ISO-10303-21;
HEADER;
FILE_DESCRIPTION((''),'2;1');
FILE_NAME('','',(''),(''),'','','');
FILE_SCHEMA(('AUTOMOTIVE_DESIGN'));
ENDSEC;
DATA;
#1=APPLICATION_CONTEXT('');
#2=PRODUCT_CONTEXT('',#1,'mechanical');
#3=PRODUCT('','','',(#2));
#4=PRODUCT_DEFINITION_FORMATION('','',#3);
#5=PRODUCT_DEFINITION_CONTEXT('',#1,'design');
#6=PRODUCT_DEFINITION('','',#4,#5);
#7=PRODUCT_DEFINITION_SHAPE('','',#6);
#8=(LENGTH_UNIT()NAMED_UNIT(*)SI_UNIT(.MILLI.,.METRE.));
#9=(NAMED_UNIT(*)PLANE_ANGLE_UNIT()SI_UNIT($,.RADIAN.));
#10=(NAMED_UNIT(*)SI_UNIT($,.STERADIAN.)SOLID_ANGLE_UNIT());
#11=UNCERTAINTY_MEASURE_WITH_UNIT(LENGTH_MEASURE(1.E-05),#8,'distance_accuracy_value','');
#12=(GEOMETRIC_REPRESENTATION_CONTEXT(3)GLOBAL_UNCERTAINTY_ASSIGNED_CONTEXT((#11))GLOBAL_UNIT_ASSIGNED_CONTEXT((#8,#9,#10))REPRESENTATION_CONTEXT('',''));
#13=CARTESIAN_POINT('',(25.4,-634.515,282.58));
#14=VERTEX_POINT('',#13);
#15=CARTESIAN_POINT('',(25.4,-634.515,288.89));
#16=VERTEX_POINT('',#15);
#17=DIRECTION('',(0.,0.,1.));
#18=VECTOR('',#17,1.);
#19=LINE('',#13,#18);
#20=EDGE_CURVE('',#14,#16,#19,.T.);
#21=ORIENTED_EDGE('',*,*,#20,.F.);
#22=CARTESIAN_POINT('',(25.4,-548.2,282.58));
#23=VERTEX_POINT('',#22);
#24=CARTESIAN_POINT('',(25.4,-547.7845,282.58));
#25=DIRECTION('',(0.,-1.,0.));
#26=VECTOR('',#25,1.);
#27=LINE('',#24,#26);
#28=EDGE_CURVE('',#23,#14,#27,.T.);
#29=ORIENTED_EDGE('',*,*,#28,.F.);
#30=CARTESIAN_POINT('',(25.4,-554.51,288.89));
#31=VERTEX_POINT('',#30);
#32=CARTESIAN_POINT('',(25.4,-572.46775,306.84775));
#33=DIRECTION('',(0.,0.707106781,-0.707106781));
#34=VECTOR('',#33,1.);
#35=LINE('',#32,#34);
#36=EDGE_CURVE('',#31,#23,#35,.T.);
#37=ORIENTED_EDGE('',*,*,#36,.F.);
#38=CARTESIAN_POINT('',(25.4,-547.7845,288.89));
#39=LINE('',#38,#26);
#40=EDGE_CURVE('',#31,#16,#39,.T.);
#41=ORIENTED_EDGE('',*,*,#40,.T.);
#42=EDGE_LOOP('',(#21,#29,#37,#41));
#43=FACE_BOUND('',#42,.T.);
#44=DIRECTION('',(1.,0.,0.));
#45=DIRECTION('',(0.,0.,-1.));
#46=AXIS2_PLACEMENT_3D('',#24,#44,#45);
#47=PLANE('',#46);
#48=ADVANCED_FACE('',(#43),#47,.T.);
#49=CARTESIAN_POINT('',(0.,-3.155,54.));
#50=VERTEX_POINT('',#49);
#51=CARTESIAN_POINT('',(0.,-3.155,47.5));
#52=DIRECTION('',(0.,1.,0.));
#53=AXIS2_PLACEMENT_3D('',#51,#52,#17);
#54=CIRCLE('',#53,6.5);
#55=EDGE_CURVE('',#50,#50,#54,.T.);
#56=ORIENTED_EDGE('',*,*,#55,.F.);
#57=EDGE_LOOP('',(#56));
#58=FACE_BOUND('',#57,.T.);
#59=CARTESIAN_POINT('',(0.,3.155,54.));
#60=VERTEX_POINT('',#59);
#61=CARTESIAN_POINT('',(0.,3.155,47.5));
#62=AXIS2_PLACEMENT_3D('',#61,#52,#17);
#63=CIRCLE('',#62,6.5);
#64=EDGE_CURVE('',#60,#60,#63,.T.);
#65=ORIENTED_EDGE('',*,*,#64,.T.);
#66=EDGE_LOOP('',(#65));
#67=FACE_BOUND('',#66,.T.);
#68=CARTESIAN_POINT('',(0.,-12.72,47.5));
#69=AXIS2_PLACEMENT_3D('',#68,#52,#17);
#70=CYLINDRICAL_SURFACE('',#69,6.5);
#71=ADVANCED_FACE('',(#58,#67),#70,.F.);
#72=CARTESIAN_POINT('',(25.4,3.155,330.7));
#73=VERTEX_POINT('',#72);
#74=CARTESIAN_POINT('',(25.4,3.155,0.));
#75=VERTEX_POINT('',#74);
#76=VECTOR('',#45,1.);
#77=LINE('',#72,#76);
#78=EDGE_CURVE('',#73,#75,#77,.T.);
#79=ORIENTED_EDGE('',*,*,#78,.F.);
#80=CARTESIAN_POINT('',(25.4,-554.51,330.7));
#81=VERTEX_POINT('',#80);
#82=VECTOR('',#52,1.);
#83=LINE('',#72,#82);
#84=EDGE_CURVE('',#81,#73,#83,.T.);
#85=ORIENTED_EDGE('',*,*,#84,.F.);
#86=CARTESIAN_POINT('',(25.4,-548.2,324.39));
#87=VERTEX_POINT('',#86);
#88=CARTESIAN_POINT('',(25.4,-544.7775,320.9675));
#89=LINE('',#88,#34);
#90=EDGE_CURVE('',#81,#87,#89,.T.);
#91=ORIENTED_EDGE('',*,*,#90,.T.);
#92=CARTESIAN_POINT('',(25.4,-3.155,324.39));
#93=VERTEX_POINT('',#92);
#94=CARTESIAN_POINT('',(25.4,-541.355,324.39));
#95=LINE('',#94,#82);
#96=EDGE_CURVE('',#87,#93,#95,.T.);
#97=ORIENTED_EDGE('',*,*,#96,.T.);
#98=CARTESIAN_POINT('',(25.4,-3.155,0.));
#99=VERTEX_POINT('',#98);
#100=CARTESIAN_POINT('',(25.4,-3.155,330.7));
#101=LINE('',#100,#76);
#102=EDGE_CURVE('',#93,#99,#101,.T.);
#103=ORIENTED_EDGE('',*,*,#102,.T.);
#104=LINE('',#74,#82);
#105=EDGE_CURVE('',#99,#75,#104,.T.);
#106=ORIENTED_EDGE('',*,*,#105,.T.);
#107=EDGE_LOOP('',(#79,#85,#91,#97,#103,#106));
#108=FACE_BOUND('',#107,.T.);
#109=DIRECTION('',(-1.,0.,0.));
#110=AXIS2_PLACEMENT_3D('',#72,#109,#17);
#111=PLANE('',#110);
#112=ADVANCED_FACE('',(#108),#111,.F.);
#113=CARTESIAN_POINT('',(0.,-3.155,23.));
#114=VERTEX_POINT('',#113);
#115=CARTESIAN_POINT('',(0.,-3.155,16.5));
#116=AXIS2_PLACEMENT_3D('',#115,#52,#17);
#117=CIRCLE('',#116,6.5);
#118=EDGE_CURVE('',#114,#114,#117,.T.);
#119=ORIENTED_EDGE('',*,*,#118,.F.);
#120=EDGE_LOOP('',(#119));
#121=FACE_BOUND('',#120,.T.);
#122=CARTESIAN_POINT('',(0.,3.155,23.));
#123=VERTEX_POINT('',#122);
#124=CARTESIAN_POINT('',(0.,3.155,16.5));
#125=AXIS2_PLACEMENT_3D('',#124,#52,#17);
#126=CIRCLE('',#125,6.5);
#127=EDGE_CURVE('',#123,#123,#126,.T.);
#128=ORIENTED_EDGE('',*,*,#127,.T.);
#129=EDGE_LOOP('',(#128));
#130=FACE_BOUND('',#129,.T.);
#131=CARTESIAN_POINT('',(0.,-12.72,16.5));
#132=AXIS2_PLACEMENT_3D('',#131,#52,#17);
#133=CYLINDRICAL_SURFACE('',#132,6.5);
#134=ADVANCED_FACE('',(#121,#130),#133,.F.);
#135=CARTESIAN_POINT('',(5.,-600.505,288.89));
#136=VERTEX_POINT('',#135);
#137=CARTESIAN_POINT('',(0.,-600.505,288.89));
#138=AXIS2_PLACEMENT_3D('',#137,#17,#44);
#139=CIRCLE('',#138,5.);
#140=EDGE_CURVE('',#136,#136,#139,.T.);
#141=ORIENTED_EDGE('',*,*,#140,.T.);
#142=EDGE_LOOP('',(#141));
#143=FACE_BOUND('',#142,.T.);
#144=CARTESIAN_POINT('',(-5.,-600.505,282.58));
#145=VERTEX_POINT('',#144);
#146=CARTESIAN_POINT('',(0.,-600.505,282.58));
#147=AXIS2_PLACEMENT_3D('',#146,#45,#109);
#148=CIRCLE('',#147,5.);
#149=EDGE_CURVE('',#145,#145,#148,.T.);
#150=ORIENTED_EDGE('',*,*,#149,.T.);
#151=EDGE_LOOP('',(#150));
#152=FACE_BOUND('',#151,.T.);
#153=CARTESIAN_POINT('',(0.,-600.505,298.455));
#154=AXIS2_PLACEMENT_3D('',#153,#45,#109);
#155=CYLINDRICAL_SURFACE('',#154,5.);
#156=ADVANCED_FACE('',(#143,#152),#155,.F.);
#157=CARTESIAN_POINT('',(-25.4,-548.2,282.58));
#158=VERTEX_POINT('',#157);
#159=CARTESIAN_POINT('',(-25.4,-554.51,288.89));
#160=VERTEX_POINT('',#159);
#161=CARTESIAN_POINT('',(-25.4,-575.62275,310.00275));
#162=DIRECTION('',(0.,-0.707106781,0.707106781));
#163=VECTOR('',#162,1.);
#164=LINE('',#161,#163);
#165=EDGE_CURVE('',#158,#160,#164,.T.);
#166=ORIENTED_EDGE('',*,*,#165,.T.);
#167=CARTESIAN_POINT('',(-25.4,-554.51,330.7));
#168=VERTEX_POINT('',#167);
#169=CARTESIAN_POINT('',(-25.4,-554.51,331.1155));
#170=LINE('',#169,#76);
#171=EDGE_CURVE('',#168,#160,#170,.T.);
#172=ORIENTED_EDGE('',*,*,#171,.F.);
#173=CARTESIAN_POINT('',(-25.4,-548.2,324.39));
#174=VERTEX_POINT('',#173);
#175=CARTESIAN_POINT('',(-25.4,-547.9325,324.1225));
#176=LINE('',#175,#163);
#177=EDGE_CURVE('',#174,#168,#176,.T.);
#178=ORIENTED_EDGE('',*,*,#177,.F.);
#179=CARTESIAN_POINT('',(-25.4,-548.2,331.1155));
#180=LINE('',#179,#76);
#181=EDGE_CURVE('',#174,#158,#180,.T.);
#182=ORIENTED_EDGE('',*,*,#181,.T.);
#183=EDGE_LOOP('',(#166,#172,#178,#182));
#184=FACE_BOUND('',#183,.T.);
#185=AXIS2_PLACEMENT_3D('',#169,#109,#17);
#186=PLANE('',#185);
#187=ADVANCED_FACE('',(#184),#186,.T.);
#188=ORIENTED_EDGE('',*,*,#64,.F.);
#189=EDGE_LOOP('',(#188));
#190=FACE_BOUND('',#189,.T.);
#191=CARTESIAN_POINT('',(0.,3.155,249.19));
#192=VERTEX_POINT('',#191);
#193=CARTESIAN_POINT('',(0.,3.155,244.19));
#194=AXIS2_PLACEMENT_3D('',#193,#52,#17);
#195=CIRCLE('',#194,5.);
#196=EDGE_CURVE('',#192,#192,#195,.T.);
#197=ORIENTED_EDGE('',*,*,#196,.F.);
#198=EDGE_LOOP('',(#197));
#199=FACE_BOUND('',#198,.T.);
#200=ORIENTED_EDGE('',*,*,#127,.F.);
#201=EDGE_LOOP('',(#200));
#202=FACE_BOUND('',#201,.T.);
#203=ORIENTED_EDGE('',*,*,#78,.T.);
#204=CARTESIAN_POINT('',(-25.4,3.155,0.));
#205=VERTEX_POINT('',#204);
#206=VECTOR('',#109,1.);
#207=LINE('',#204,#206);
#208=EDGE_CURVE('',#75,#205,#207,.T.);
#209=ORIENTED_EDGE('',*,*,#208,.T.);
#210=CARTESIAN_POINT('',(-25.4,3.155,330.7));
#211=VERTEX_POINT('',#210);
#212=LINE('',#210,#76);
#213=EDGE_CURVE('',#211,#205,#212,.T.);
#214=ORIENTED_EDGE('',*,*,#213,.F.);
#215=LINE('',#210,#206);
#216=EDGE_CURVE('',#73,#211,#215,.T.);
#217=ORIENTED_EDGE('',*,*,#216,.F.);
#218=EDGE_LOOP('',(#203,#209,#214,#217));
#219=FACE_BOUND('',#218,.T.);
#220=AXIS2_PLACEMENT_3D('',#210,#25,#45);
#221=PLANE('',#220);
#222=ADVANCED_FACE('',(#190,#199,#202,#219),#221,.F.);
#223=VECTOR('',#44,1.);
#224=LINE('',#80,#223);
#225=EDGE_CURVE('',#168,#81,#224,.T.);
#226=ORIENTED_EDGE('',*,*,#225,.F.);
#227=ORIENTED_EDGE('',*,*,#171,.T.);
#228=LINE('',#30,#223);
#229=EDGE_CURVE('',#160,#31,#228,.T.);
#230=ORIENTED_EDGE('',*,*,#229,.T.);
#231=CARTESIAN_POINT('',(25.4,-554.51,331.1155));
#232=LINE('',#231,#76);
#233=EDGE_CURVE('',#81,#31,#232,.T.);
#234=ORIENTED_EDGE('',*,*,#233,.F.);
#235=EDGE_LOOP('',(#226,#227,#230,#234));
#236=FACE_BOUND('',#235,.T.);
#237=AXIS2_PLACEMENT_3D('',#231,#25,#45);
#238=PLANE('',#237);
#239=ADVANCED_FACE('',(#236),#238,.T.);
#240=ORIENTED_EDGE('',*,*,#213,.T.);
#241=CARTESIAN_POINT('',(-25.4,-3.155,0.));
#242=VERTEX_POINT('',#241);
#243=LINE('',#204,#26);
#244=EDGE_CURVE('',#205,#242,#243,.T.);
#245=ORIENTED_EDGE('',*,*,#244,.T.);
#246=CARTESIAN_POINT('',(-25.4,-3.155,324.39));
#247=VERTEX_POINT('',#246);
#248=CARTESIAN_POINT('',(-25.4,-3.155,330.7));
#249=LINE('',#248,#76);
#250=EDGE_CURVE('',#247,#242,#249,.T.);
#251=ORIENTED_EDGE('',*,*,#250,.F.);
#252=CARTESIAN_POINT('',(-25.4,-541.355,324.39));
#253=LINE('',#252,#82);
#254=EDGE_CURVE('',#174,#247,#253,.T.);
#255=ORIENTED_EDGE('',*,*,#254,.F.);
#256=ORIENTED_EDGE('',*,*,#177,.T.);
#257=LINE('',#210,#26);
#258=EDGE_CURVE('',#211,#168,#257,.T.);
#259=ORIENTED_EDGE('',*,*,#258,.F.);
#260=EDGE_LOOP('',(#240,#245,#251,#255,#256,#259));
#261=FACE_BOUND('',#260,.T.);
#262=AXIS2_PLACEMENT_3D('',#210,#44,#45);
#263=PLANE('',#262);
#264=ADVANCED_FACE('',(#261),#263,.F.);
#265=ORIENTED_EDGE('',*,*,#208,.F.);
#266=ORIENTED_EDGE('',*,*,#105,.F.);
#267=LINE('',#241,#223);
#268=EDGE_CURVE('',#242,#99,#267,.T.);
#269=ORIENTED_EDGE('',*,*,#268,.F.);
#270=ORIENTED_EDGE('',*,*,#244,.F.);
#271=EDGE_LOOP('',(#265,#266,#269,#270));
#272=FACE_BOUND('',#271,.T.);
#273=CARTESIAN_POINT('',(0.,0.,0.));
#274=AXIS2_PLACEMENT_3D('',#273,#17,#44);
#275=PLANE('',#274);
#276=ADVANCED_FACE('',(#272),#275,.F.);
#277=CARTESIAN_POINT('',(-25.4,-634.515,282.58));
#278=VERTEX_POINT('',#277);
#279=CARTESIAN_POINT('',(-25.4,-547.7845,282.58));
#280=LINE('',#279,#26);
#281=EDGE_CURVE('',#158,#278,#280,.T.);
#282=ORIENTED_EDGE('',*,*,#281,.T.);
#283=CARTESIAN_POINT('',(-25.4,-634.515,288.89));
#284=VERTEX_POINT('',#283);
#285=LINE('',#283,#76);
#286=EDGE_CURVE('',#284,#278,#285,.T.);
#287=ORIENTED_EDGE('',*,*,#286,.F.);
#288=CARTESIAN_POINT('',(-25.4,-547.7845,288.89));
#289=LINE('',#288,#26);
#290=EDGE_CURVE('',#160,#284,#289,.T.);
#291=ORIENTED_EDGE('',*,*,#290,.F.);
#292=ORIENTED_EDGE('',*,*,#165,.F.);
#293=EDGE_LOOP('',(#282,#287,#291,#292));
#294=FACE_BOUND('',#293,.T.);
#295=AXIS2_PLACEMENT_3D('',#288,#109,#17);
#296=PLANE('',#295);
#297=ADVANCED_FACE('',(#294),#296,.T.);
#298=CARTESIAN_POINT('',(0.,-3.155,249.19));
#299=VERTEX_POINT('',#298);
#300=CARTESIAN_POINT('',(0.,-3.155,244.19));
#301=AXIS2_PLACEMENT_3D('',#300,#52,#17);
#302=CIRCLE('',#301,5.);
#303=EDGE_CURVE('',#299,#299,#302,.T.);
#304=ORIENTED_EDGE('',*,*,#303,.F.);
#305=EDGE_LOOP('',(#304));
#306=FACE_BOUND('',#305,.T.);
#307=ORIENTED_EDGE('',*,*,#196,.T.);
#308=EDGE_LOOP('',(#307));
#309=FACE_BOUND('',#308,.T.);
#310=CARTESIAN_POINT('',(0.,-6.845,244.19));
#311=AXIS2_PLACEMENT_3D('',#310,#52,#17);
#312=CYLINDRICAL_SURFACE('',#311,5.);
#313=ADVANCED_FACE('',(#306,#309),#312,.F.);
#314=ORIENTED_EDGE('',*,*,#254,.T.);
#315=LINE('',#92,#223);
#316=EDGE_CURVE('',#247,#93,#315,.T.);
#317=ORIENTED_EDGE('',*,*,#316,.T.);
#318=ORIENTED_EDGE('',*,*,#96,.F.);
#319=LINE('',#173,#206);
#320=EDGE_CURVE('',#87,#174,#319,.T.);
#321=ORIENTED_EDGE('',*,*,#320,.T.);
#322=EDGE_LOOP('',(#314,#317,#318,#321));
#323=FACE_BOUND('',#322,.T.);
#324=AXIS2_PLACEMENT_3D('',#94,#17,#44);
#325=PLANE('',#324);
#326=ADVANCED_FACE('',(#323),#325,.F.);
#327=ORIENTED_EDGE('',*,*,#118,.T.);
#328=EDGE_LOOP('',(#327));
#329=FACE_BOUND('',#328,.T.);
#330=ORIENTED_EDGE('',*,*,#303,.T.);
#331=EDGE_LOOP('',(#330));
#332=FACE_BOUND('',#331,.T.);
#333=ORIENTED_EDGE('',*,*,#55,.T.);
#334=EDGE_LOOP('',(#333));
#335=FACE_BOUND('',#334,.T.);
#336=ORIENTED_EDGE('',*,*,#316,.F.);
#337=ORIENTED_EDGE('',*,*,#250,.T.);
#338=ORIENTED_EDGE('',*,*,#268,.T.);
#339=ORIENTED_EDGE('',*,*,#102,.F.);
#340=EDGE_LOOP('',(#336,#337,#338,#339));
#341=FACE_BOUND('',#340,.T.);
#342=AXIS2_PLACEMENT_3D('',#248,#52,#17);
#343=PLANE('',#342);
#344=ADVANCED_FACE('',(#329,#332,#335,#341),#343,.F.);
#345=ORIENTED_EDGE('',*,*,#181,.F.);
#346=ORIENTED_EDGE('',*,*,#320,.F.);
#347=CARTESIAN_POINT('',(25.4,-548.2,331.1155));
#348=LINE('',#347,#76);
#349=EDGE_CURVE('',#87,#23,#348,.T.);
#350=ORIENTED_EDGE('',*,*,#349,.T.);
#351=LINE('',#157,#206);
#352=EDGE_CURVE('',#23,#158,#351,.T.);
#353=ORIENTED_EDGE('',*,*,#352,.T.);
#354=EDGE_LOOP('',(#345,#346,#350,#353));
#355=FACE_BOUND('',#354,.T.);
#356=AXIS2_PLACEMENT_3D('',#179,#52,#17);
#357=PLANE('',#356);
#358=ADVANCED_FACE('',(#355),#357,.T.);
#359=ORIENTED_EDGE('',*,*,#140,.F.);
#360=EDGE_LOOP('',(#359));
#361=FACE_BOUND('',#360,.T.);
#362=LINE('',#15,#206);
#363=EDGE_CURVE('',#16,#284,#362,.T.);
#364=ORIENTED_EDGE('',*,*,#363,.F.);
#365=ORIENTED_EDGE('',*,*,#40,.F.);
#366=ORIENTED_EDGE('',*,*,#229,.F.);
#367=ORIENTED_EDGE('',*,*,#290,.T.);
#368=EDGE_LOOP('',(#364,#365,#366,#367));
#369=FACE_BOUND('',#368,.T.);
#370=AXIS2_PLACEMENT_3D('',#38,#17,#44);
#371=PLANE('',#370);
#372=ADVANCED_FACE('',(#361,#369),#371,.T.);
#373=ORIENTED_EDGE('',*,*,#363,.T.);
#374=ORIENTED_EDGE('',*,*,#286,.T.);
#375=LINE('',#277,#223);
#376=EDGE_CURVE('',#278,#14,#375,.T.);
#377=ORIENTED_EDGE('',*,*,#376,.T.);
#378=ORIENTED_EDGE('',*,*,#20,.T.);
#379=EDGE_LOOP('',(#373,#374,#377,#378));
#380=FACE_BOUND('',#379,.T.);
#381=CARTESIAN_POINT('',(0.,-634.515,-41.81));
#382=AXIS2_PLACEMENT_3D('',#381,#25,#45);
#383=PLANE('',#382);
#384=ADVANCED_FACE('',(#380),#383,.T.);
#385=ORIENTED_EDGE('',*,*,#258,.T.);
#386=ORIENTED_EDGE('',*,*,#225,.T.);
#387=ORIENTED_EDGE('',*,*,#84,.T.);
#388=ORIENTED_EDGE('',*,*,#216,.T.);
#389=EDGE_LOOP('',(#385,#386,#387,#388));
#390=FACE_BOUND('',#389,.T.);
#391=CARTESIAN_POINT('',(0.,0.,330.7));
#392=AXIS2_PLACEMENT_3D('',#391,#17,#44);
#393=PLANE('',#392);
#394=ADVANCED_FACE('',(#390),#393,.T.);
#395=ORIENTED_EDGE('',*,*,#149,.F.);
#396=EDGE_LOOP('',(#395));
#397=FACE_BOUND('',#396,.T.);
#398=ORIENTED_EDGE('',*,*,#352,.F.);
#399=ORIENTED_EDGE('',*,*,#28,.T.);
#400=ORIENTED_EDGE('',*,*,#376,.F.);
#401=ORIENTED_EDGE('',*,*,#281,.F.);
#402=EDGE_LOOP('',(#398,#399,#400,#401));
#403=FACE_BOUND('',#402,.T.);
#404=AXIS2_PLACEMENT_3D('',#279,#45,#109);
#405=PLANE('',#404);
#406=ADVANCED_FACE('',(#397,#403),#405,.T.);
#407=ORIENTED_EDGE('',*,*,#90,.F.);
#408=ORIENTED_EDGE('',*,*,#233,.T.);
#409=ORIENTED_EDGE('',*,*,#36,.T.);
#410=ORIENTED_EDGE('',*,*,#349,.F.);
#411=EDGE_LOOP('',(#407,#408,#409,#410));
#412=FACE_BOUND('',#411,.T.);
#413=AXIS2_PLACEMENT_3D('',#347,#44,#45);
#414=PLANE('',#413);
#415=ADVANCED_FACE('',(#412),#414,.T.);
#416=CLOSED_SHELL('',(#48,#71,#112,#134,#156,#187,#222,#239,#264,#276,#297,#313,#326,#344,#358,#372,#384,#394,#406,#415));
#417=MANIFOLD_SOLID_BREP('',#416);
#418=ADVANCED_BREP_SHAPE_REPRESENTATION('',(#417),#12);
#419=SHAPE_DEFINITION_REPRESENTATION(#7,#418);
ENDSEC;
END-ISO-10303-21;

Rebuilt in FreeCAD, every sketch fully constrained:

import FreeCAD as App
import Part
import Sketcher
Q = App.Units.Quantity


def add_polygon(sketch, points):
    """Adds a closed chain of lines whose ends are joined by coincident constraints."""
    first, n = sketch.GeometryCount, len(points)
    for a, b in zip(points, points[1:] + points[:1]):
        sketch.addGeometry(Part.LineSegment(App.Vector(*a, 0), App.Vector(*b, 0)), False)
    for i in range(n):
        sketch.addConstraint(Sketcher.Constraint("Coincident", first + i, 2, first + (i + 1) % n, 1))

doc = App.newDocument("Part")
body = doc.addObject("PartDesign::Body", "Body")

# Sketch on XY plane
sketch1 = body.newObject("Sketcher::SketchObject", "Sketch")
sketch1.AttachmentSupport = (doc.getObject("XY_Plane"), [""])
sketch1.MapMode = "FlatFace"
add_polygon(sketch1, [(-25.4, 3.155), (-25.4, -3.155), (25.4, -3.155), (25.4, 3.155)])  # lines 0-3
sketch1.addConstraint(Sketcher.Constraint("Vertical", 0))
sketch1.addConstraint(Sketcher.Constraint("Horizontal", 1))
sketch1.addConstraint(Sketcher.Constraint("Vertical", 2))
sketch1.addConstraint(Sketcher.Constraint("Horizontal", 3))
sketch1.addConstraint(Sketcher.Constraint("Symmetric", 0, 2, 2, 2, -1, 1))
sketch1.addConstraint(Sketcher.Constraint("DistanceX", 1, 1, 1, 2, Q("50.8 mm")))
sketch1.addConstraint(Sketcher.Constraint("DistanceY", 0, 2, 0, 1, Q("6.31 mm")))
pad1 = body.newObject("PartDesign::Pad", "Pad")
pad1.Profile = sketch1
pad1.Length = 330.7

# Sketch on XZ plane
sketch2 = body.newObject("Sketcher::SketchObject", "Sketch001")
sketch2.AttachmentSupport = (doc.getObject("XZ_Plane"), [""])
sketch2.MapMode = "FlatFace"
sketch2.AttachmentOffset = App.Placement(App.Vector(0, 0, 3.155), App.Rotation())
add_polygon(sketch2, [(-25.4, 330.7), (-25.4, 324.39), (25.4, 324.39), (25.4, 330.7)])  # lines 0-3
sketch2.addConstraint(Sketcher.Constraint("Vertical", 0))
sketch2.addConstraint(Sketcher.Constraint("Horizontal", 1))
sketch2.addConstraint(Sketcher.Constraint("Vertical", 2))
sketch2.addConstraint(Sketcher.Constraint("Horizontal", 3))
sketch2.addConstraint(Sketcher.Constraint("DistanceX", 1, 1, 1, 2, Q("50.8 mm")))
sketch2.addConstraint(Sketcher.Constraint("DistanceY", 0, 2, 0, 1, Q("6.31 mm")))
sketch2.addConstraint(Sketcher.Constraint("DistanceX", 0, 2, -1, 1, Q("25.4 mm")))
sketch2.addConstraint(Sketcher.Constraint("DistanceY", -1, 1, 2, 2, Q("330.7 mm")))
pad2 = body.newObject("PartDesign::Pad", "Pad001")
pad2.Profile = sketch2
pad2.Length = 538.2

# Sketch on XZ plane
sketch3 = body.newObject("Sketcher::SketchObject", "Sketch002")
sketch3.AttachmentSupport = (doc.getObject("XZ_Plane"), [""])
sketch3.MapMode = "FlatFace"
sketch3.AttachmentOffset = App.Placement(App.Vector(0, 0, 541.355), App.Rotation())
add_polygon(sketch3, [(-25.4, 330.7), (-25.4, 324.39), (25.4, 324.39), (25.4, 330.7)])  # lines 0-3
sketch3.addConstraint(Sketcher.Constraint("Vertical", 0))
sketch3.addConstraint(Sketcher.Constraint("Horizontal", 1))
sketch3.addConstraint(Sketcher.Constraint("Vertical", 2))
sketch3.addConstraint(Sketcher.Constraint("Horizontal", 3))
sketch3.addConstraint(Sketcher.Constraint("DistanceX", 1, 1, 1, 2, Q("50.8 mm")))
sketch3.addConstraint(Sketcher.Constraint("DistanceY", 0, 2, 0, 1, Q("6.31 mm")))
sketch3.addConstraint(Sketcher.Constraint("DistanceX", 0, 2, -1, 1, Q("25.4 mm")))
sketch3.addConstraint(Sketcher.Constraint("DistanceY", -1, 1, 2, 2, Q("330.7 mm")))

# Sketch on YZ plane
sketch4 = body.newObject("Sketcher::SketchObject", "Sketch003")
sketch4.AttachmentSupport = (doc.getObject("YZ_Plane"), [""])
sketch4.MapMode = "FlatFace"
sketch4.addGeometry(Part.LineSegment(App.Vector(-541.355, 327.545, 0), App.Vector(-551.355, 327.545, 0)), False)
sketch4.addGeometry(Part.LineSegment(App.Vector(-551.355, 327.545, 0), App.Vector(-551.355, 285.735, 0)), False)
sketch4.addGeometry(Part.LineSegment(App.Vector(-551.355, 285.735, 0), App.Vector(-634.515, 285.735, 0)), False)
sketch4.addConstraint(Sketcher.Constraint("Coincident", 0, 2, 1, 1))
sketch4.addConstraint(Sketcher.Constraint("Coincident", 1, 2, 2, 1))
sketch4.addConstraint(Sketcher.Constraint("Horizontal", 0))
sketch4.addConstraint(Sketcher.Constraint("Vertical", 1))
sketch4.addConstraint(Sketcher.Constraint("Horizontal", 2))
sketch4.addConstraint(Sketcher.Constraint("DistanceX", 0, 2, 0, 1, Q("10 mm")))
sketch4.addConstraint(Sketcher.Constraint("DistanceX", 2, 2, 2, 1, Q("83.16 mm")))
sketch4.addConstraint(Sketcher.Constraint("DistanceY", 1, 2, 1, 1, Q("41.81 mm")))
sketch4.addConstraint(Sketcher.Constraint("DistanceX", 0, 1, -1, 1, Q("541.355 mm")))
sketch4.addConstraint(Sketcher.Constraint("DistanceY", -1, 1, 0, 1, Q("327.545 mm")))
doc.recompute()

additivepipe = body.newObject("PartDesign::AdditivePipe", "AdditivePipe")
additivepipe.Profile = sketch3
additivepipe.Spine = (sketch4, ["Edge1", "Edge2", "Edge3"])
additivepipe.Transition = "Right corner"

# Sketch on XY plane
sketch5 = body.newObject("Sketcher::SketchObject", "Sketch004")
sketch5.AttachmentSupport = (doc.getObject("XY_Plane"), [""])
sketch5.MapMode = "FlatFace"
sketch5.AttachmentOffset = App.Placement(App.Vector(0, 0, 282.58), App.Rotation())
sketch5.addGeometry(Part.Circle(App.Vector(0, -600.505, 0), App.Vector(0, 0, 1), 5), False)
sketch5.addConstraint(Sketcher.Constraint("PointOnObject", 0, 3, -2))
sketch5.addConstraint(Sketcher.Constraint("Diameter", 0, Q("10 mm")))
sketch5.addConstraint(Sketcher.Constraint("DistanceY", 0, 3, -1, 1, Q("600.505 mm")))
pocket1 = body.newObject("PartDesign::Pocket", "Pocket")
pocket1.Profile = sketch5
pocket1.Length = 15.875
pocket1.Reversed = True

# Sketch on XZ plane
sketch6 = body.newObject("Sketcher::SketchObject", "Sketch005")
sketch6.AttachmentSupport = (doc.getObject("XZ_Plane"), [""])
sketch6.MapMode = "FlatFace"
sketch6.AttachmentOffset = App.Placement(App.Vector(0, 0, -3.155), App.Rotation())
sketch6.addGeometry(Part.Circle(App.Vector(0, 47.5, 0), App.Vector(0, 0, 1), 6.5), False)
sketch6.addGeometry(Part.Circle(App.Vector(0, 16.5, 0), App.Vector(0, 0, 1), 6.5), False)
sketch6.addConstraint(Sketcher.Constraint("Equal", 0, 1))
sketch6.addConstraint(Sketcher.Constraint("PointOnObject", 0, 3, -2))
sketch6.addConstraint(Sketcher.Constraint("PointOnObject", 1, 3, -2))
sketch6.addConstraint(Sketcher.Constraint("Diameter", 0, Q("13 mm")))
sketch6.addConstraint(Sketcher.Constraint("DistanceY", 1, 3, 0, 3, Q("31 mm")))
sketch6.addConstraint(Sketcher.Constraint("DistanceY", -1, 1, 0, 3, Q("47.5 mm")))
pocket2 = body.newObject("PartDesign::Pocket", "Pocket001")
pocket2.Profile = sketch6
pocket2.Length = 15.875
pocket2.Reversed = True

# Sketch on XZ plane
sketch7 = body.newObject("Sketcher::SketchObject", "Sketch006")
sketch7.AttachmentSupport = (doc.getObject("XZ_Plane"), [""])
sketch7.MapMode = "FlatFace"
sketch7.AttachmentOffset = App.Placement(App.Vector(0, 0, -3.155), App.Rotation())
sketch7.addGeometry(Part.Circle(App.Vector(0, 244.19, 0), App.Vector(0, 0, 1), 5), False)
sketch7.addConstraint(Sketcher.Constraint("PointOnObject", 0, 3, -2))
sketch7.addConstraint(Sketcher.Constraint("Diameter", 0, Q("10 mm")))
sketch7.addConstraint(Sketcher.Constraint("DistanceY", -1, 1, 0, 3, Q("244.19 mm")))
pocket3 = body.newObject("PartDesign::Pocket", "Pocket002")
pocket3.Profile = sketch7
pocket3.Length = 10
pocket3.Reversed = True

doc.recompute()
